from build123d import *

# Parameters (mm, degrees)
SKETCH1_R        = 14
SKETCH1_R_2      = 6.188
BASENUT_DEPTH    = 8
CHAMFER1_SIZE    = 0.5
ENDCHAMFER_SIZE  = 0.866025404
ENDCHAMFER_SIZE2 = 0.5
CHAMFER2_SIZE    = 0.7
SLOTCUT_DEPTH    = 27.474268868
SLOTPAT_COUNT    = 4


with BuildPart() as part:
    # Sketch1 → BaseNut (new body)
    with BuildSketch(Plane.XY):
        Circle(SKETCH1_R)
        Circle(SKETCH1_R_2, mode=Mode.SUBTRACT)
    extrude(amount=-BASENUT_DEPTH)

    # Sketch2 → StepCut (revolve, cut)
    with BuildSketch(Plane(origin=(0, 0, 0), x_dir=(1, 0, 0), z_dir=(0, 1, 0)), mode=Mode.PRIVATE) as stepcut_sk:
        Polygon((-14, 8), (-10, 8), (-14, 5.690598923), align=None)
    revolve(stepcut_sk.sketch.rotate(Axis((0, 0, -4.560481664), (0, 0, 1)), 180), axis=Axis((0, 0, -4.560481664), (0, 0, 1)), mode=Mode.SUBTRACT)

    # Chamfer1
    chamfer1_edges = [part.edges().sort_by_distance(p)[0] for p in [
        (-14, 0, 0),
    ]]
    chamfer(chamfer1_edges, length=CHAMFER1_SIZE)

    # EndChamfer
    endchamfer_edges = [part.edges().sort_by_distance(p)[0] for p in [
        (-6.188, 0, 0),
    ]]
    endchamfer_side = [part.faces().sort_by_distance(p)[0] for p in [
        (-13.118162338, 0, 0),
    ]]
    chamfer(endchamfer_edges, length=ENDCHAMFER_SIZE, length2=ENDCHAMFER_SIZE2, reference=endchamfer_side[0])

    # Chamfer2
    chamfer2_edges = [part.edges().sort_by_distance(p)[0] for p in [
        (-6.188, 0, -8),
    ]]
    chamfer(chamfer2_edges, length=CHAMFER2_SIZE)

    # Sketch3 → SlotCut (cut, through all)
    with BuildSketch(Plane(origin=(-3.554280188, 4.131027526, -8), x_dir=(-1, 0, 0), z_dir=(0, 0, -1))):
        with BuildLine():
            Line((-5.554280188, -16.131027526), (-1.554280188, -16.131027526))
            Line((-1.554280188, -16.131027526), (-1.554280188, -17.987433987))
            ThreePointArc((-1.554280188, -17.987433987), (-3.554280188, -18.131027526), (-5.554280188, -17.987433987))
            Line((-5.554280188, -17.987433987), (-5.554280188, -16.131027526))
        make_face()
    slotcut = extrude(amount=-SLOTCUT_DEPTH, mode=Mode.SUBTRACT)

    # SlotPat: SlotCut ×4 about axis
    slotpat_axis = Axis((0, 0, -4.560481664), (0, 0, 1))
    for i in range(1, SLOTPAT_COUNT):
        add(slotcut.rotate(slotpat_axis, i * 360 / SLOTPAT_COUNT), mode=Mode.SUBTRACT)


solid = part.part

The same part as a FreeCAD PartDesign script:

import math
import FreeCAD as App
import Part
import Sketcher
from FreeCAD import Vector
Q = App.Units.Quantity


def edges_at(feature, points):
    """Names of the edges that pass closest to the given points."""
    edges = feature.Shape.Edges
    near = lambda p: min(range(len(edges)), key=lambda i: edges[i].distToShape(Part.Vertex(*p))[0])
    return sorted({f"Edge{near(p) + 1}" for p in points})


def add_polygon(sketch, points):
    """Adds a closed chain of lines whose ends are joined by coincident constraints."""
    first, n = sketch.GeometryCount, len(points)
    for a, b in zip(points, points[1:] + points[:1]):
        sketch.addGeometry(Part.LineSegment(App.Vector(*a, 0), App.Vector(*b, 0)), False)
    for i in range(n):
        sketch.addConstraint(Sketcher.Constraint("Coincident", first + i, 2, first + (i + 1) % n, 1))

doc = App.newDocument("Part")
body = doc.addObject("PartDesign::Body", "Body")

sketch1 = doc.addObject("Sketcher::SketchObject", "Sketch")
body.addObject(sketch1)
sketch1.AttachmentSupport = (doc.XY_Plane, [""])
sketch1.MapMode = "FlatFace"
sketch1.addGeometry([
    Part.Circle(Vector(0, 0, 0), Vector(0, 0, 1), 14),
    Part.Circle(Vector(0, 0, 0), Vector(0, 0, 1), 6),
], False)
sketch1.addConstraint([
    Sketcher.Constraint("Coincident", 0, 3, -1, 1),
    Sketcher.Constraint("Coincident", 1, 3, -1, 1),
    Sketcher.Constraint("Diameter", 0, Q("28 mm")),
    Sketcher.Constraint("Diameter", 1, Q("12.376 mm")),
])
pad1 = doc.addObject("PartDesign::Pad", "Pad")
body.addObject(pad1)
pad1.Profile = sketch1
pad1.Length = 8
pad1.Reversed = True

sketch2 = doc.addObject("Sketcher::SketchObject", "Sketch001")
body.addObject(sketch2)
sketch2.AttachmentSupport = (doc.XZ_Plane, [""])
sketch2.MapMode = "FlatFace"
add_polygon(sketch2, [(-10, -8), (-14, -8), (-14, -5.7)])
sketch2.addConstraint([
    Sketcher.Constraint("Horizontal", 0),
    Sketcher.Constraint("Vertical", 1),
    Sketcher.Constraint("DistanceX", 0, 2, 0, 1, Q("4 mm")),
    Sketcher.Constraint("Angle", 2, Q("-30 deg")),
    Sketcher.Constraint("DistanceX", 0, 2, -1, 1, Q("14 mm")),
    Sketcher.Constraint("DistanceY", 0, 2, -1, 1, Q("8 mm")),
])
groove = doc.addObject("PartDesign::Groove", "Groove")
body.addObject(groove)
groove.Profile = sketch2
groove.ReferenceAxis = (sketch2, ["V_Axis"])
groove.Angle = 360
doc.recompute()

chamfer = doc.addObject("PartDesign::Chamfer", "Chamfer")
body.addObject(chamfer)
chamfer.Base = (groove, edges_at(groove, [(-14, 0, 0)]))
chamfer.Size = 0.5
doc.recompute()

chamfer2 = doc.addObject("PartDesign::Chamfer", "Chamfer001")
body.addObject(chamfer2)
chamfer2.Base = (chamfer, edges_at(chamfer, [(-6.188, 0, 0)]))
chamfer2.ChamferType = "Two distances"
chamfer2.Size = 0.866025
chamfer2.Size2 = 0.5
doc.recompute()

chamfer3 = doc.addObject("PartDesign::Chamfer", "Chamfer002")
body.addObject(chamfer3)
chamfer3.Base = (chamfer2, edges_at(chamfer2, [(-6.188, 0, -8)]))
chamfer3.Size = 0.7

sketch3 = doc.addObject("Sketcher::SketchObject", "Sketch002")
body.addObject(sketch3)
sketch3.AttachmentSupport = (doc.XY_Plane, [""])
sketch3.MapMode = "FlatFace"
sketch3.AttachmentOffset = App.Placement(Vector(0, 0, -8), App.Rotation())
sketch3.addGeometry([
    Part.LineSegment(Vector(-2, -12, 0), Vector(2, -12, 0)),
    Part.LineSegment(Vector(2, -12, 0), Vector(2, -13.9, 0)),
    Part.ArcOfCircle(Part.Circle(Vector(0, 0, 0), Vector(0, 0, 1), 14), math.radians(-98.21), math.radians(-81.79)),
    Part.LineSegment(Vector(-2, -13.9, 0), Vector(-2, -12, 0)),
], False)
sketch3.addConstraint([
    Sketcher.Constraint("Coincident", 0, 2, 1, 1),
    Sketcher.Constraint("Coincident", 1, 2, 2, 2),
    Sketcher.Constraint("Coincident", 2, 1, 3, 1),
    Sketcher.Constraint("Coincident", 3, 2, 0, 1),
    Sketcher.Constraint("Horizontal", 0),
    Sketcher.Constraint("Vertical", 1),
    Sketcher.Constraint("Vertical", 3),
    Sketcher.Constraint("Coincident", 2, 3, -1, 1),
    Sketcher.Constraint("Horizontal", 1, 2, 2, 1),
    Sketcher.Constraint("Radius", 2, Q("14 mm")),
    Sketcher.Constraint("DistanceX", 0, 1, 0, 2, Q("4 mm")),
    Sketcher.Constraint("DistanceY", 0, 2, -1, 1, Q("12 mm")),
])
pocket1 = doc.addObject("PartDesign::Pocket", "Pocket")
body.addObject(pocket1)
pocket1.Profile = sketch3
pocket1.Type = "ThroughAll"
pocket1.Reversed = True
doc.recompute()

polarpattern = doc.addObject("PartDesign::PolarPattern", "PolarPattern")
body.addObject(polarpattern)
polarpattern.Originals = [pocket1]
polarpattern.Axis = (doc.Z_Axis, [""])
polarpattern.Angle = 360
polarpattern.Occurrences = 4
body.Tip = polarpattern

doc.recompute()
